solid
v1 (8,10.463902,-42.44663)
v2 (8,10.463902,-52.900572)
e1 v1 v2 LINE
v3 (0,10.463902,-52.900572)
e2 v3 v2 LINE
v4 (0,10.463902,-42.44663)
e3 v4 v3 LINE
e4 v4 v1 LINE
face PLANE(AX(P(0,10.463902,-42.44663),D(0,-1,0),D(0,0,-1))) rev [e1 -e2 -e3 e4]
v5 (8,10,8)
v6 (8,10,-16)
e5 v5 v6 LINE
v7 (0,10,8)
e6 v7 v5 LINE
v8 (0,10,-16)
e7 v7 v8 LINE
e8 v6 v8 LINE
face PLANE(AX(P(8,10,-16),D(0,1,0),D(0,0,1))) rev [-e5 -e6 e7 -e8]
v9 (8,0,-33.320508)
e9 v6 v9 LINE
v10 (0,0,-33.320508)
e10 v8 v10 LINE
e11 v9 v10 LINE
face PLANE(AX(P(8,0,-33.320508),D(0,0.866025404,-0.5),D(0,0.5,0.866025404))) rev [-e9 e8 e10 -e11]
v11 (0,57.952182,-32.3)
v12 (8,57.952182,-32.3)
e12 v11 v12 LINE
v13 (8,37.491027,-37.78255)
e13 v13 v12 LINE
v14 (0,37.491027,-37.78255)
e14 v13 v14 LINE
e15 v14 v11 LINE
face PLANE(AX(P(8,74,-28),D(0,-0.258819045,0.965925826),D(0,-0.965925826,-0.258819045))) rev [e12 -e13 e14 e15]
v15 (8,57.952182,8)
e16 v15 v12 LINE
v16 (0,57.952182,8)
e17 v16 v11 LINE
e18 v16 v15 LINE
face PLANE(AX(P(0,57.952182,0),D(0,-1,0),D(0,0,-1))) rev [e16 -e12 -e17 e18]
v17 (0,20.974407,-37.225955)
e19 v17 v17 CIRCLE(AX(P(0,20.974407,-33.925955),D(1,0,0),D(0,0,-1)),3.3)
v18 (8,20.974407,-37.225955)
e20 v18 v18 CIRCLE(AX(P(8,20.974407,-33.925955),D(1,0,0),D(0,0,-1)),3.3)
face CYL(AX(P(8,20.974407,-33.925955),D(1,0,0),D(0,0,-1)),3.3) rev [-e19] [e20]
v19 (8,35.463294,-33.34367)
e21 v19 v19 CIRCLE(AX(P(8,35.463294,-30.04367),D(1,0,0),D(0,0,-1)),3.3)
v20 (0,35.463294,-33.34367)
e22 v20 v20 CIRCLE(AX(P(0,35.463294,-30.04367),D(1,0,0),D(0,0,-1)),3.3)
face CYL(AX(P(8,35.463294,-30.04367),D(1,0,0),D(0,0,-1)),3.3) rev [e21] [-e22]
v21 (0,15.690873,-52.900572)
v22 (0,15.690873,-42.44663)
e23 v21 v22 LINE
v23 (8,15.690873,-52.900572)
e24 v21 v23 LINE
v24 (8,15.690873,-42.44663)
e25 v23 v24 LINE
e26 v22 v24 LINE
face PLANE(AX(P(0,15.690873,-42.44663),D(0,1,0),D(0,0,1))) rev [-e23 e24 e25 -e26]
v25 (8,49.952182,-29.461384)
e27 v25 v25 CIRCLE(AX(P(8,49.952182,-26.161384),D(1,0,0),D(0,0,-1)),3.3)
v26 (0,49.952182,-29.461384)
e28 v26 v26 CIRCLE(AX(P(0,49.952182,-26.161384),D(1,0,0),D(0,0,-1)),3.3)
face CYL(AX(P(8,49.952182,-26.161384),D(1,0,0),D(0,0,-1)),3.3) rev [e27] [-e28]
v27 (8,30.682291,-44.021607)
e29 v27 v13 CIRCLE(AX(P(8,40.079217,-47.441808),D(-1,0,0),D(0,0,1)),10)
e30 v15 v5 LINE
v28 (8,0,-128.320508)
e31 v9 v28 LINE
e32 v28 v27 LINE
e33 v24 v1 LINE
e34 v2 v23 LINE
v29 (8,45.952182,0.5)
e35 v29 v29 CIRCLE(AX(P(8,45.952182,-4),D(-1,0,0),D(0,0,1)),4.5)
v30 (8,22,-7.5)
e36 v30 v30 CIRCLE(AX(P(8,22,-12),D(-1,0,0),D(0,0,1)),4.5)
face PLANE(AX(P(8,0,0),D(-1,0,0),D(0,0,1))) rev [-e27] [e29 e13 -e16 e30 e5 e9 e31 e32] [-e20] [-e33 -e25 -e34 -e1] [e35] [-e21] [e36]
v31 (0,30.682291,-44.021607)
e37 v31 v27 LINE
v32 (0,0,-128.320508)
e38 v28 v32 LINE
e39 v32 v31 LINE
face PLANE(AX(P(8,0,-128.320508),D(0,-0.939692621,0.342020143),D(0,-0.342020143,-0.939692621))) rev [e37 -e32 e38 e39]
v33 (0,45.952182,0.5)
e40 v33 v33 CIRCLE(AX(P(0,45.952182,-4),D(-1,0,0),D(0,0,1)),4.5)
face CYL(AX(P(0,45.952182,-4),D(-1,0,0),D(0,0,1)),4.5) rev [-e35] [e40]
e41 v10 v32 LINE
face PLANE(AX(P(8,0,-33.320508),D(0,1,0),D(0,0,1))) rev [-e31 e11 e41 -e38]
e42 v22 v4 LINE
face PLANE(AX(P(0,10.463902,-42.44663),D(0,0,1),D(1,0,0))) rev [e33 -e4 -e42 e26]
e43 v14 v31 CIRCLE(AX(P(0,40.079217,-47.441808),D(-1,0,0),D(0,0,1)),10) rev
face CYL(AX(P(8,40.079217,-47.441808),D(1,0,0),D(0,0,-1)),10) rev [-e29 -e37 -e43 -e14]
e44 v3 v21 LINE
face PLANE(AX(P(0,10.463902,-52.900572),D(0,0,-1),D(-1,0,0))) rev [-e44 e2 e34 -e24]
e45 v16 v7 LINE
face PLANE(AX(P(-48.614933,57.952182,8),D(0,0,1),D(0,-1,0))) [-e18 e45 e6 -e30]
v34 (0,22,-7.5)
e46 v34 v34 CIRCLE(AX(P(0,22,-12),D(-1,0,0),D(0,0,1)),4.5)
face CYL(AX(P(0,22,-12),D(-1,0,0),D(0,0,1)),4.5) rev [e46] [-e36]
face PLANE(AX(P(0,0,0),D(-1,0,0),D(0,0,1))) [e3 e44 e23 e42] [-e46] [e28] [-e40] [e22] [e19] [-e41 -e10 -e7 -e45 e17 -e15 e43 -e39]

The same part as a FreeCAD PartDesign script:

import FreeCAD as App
import Part
import Sketcher
from FreeCAD import Vector
Q = App.Units.Quantity


def edges_at(feature, points):
    """Names of the edges that pass closest to the given points."""
    edges = feature.Shape.Edges
    near = lambda p: min(range(len(edges)), key=lambda i: edges[i].distToShape(Part.Vertex(*p))[0])
    return sorted({f"Edge{near(p) + 1}" for p in points})

doc = App.newDocument("Part")
body = doc.addObject("PartDesign::Body", "Body")

# Sketch on YZ plane
sketch1 = body.newObject("Sketcher::SketchObject", "Sketch")
sketch1.AttachmentSupport = (doc.getObject("YZ_Plane"), [""])
sketch1.MapMode = "FlatFace"
sketch1.addGeometry(Part.LineSegment(Vector(32, -39, 0), Vector(74, -28, 0)), False)
sketch1.addGeometry(Part.LineSegment(Vector(74, -28, 0), Vector(74, 0, 0)), False)
sketch1.addGeometry(Part.LineSegment(Vector(74, 0, 0), Vector(10, 0, 0)), False)
sketch1.addGeometry(Part.LineSegment(Vector(10, 0, 0), Vector(10, -16, 0)), False)
sketch1.addGeometry(Part.LineSegment(Vector(10, -16, 0), Vector(0, -33, 0)), False)
sketch1.addGeometry(Part.LineSegment(Vector(0, -33, 0), Vector(0, -128, 0)), False)
sketch1.addGeometry(Part.LineSegment(Vector(0, -128, 0), Vector(32, -39, 0)), False)
sketch1.addConstraint(Sketcher.Constraint("Coincident", 0, 2, 1, 1))
sketch1.addConstraint(Sketcher.Constraint("Coincident", 1, 2, 2, 1))
sketch1.addConstraint(Sketcher.Constraint("Coincident", 2, 2, 3, 1))
sketch1.addConstraint(Sketcher.Constraint("Coincident", 3, 2, 4, 1))
sketch1.addConstraint(Sketcher.Constraint("Coincident", 4, 2, 5, 1))
sketch1.addConstraint(Sketcher.Constraint("Coincident", 5, 2, 6, 1))
sketch1.addConstraint(Sketcher.Constraint("Coincident", 6, 2, 0, 1))
sketch1.addConstraint(Sketcher.Constraint("Vertical", 1))
sketch1.addConstraint(Sketcher.Constraint("Horizontal", 2))
sketch1.addConstraint(Sketcher.Constraint("Vertical", 3))
sketch1.addConstraint(Sketcher.Constraint("Vertical", 5))
sketch1.addConstraint(Sketcher.Constraint("PointOnObject", 1, 2, -1))
sketch1.addConstraint(Sketcher.Constraint("PointOnObject", 4, 2, -2))
sketch1.addConstraint(Sketcher.Constraint("DistanceX", 2, 2, 2, 1, Q("64 mm")))
sketch1.addConstraint(Sketcher.Constraint("DistanceY", 1, 1, 1, 2, Q("28 mm")))
sketch1.addConstraint(Sketcher.Constraint("DistanceY", 3, 2, 3, 1, Q("16 mm")))
sketch1.addConstraint(Sketcher.Constraint("DistanceY", 5, 2, 5, 1, Q("95 mm")))
sketch1.addConstraint(Sketcher.Constraint("Angle", 0, Q("15 deg")))
sketch1.addConstraint(Sketcher.Constraint("Angle", 4, Q("-120 deg")))
sketch1.addConstraint(Sketcher.Constraint("Angle", 6, Q("70 deg")))
sketch1.addConstraint(Sketcher.Constraint("Distance", 4, Q("20 mm")))
pad1 = body.newObject("PartDesign::Pad", "Pad")
pad1.Profile = sketch1
pad1.Length = 8

# Sketch on YZ plane
sketch2 = body.newObject("Sketcher::SketchObject", "Sketch001")
sketch2.AttachmentSupport = (doc.getObject("YZ_Plane"), [""])
sketch2.MapMode = "FlatFace"
sketch2.AttachmentOffset = App.Placement(Vector(0, 0, 8), App.Rotation())
sketch2.addGeometry(Part.LineSegment(Vector(74, 0, 0), Vector(58, 0, 0)), False)
sketch2.addGeometry(Part.LineSegment(Vector(58, 0, 0), Vector(58, -32, 0)), False)
sketch2.addGeometry(Part.LineSegment(Vector(58, -32, 0), Vector(74, -32, 0)), False)
sketch2.addGeometry(Part.LineSegment(Vector(74, -32, 0), Vector(74, 0, 0)), False)
sketch2.addConstraint(Sketcher.Constraint("Coincident", 0, 2, 1, 1))
sketch2.addConstraint(Sketcher.Constraint("Coincident", 1, 2, 2, 1))
sketch2.addConstraint(Sketcher.Constraint("Coincident", 2, 2, 3, 1))
sketch2.addConstraint(Sketcher.Constraint("Coincident", 3, 2, 0, 1))
sketch2.addConstraint(Sketcher.Constraint("Horizontal", 0))
sketch2.addConstraint(Sketcher.Constraint("Vertical", 1))
sketch2.addConstraint(Sketcher.Constraint("Horizontal", 2))
sketch2.addConstraint(Sketcher.Constraint("Vertical", 3))
sketch2.addConstraint(Sketcher.Constraint("PointOnObject", 0, 2, -1))
sketch2.addConstraint(Sketcher.Constraint("DistanceY", 1, 2, 1, 1, Q("32.3 mm")))
sketch2.addConstraint(Sketcher.Constraint("DistanceX", -1, 1, 2, 2, Q("74 mm")))
sketch2.addConstraint(Sketcher.Constraint("DistanceX", 0, 2, 0, 1, Q("16.047818 mm")))
pocket1 = body.newObject("PartDesign::Pocket", "Pocket")
pocket1.Profile = sketch2
pocket1.Type = "ThroughAll"

# Sketch on YZ plane
sketch3 = body.newObject("Sketcher::SketchObject", "Sketch002")
sketch3.AttachmentSupport = (doc.getObject("YZ_Plane"), [""])
sketch3.MapMode = "FlatFace"
sketch3.AttachmentOffset = App.Placement(Vector(0, 0, 8), App.Rotation())
sketch3.addGeometry(Part.LineSegment(Vector(58, 8, 0), Vector(10, 8, 0)), False)
sketch3.addGeometry(Part.LineSegment(Vector(10, 8, 0), Vector(10, 0, 0)), False)
sketch3.addGeometry(Part.LineSegment(Vector(10, 0, 0), Vector(58, 0, 0)), False)
sketch3.addGeometry(Part.LineSegment(Vector(58, 0, 0), Vector(58, 8, 0)), False)
sketch3.addConstraint(Sketcher.Constraint("Coincident", 0, 2, 1, 1))
sketch3.addConstraint(Sketcher.Constraint("Coincident", 1, 2, 2, 1))
sketch3.addConstraint(Sketcher.Constraint("Coincident", 2, 2, 3, 1))
sketch3.addConstraint(Sketcher.Constraint("Coincident", 3, 2, 0, 1))
sketch3.addConstraint(Sketcher.Constraint("Horizontal", 0))
sketch3.addConstraint(Sketcher.Constraint("Vertical", 1))
sketch3.addConstraint(Sketcher.Constraint("Horizontal", 2))
sketch3.addConstraint(Sketcher.Constraint("Vertical", 3))
sketch3.addConstraint(Sketcher.Constraint("PointOnObject", 1, 2, -1))
sketch3.addConstraint(Sketcher.Constraint("DistanceY", 1, 2, 1, 1, Q("8 mm")))
sketch3.addConstraint(Sketcher.Constraint("DistanceX", -1, 1, 0, 2, Q("10 mm")))
sketch3.addConstraint(Sketcher.Constraint("DistanceX", 0, 2, 0, 1, Q("47.952182 mm")))
pad2 = body.newObject("PartDesign::Pad", "Pad001")
pad2.Profile = sketch3
pad2.Length = 8
pad2.Reversed = True

# Sketch on YZ plane
sketch4 = body.newObject("Sketcher::SketchObject", "Sketch003")
sketch4.AttachmentSupport = (doc.getObject("YZ_Plane"), [""])
sketch4.MapMode = "FlatFace"
sketch4.addGeometry(Part.Circle(Vector(46, -4, 0), Vector(0, 0, 1), 4.5), False)
sketch4.addGeometry(Part.Circle(Vector(22, -12, 0), Vector(0, 0, 1), 4.5), False)
sketch4.addConstraint(Sketcher.Constraint("Equal", 0, 1))
sketch4.addConstraint(Sketcher.Constraint("Diameter", 0, Q("9 mm")))
sketch4.addConstraint(Sketcher.Constraint("DistanceY", 0, 3, -1, 1, Q("4 mm")))
sketch4.addConstraint(Sketcher.Constraint("DistanceX", -1, 1, 1, 3, Q("22 mm")))
sketch4.addConstraint(Sketcher.Constraint("DistanceY", 1, 3, -1, 1, Q("12 mm")))
sketch4.addConstraint(Sketcher.Constraint("DistanceX", -1, 1, 0, 3, Q("45.952182 mm")))
doc.recompute()
hole = body.newObject("PartDesign::Hole", "Hole")
hole.Profile = sketch4
hole.ThreadType = "None"
hole.Diameter = 9
hole.DepthType = "ThroughAll"
hole.Reversed = True

# Sketch on YZ plane
sketch5 = body.newObject("Sketcher::SketchObject", "Sketch004")
sketch5.AttachmentSupport = (doc.getObject("YZ_Plane"), [""])
sketch5.MapMode = "FlatFace"
sketch5.AttachmentOffset = App.Placement(Vector(0, 0, 8), App.Rotation())
sketch5.addGeometry(Part.Circle(Vector(50, -26.2, 0), Vector(0, 0, 1), 3.3), False)
sketch5.addGeometry(Part.Circle(Vector(35.5, -30, 0), Vector(0, 0, 1), 3.3), False)
sketch5.addGeometry(Part.Circle(Vector(21, -33.9, 0), Vector(0, 0, 1), 3.3), False)
sketch5.addConstraint(Sketcher.Constraint("Equal", 0, 1))
sketch5.addConstraint(Sketcher.Constraint("Equal", 1, 2))
sketch5.addConstraint(Sketcher.Constraint("Diameter", 0, Q("6.6 mm")))
sketch5.addConstraint(Sketcher.Constraint("DistanceX", -1, 1, 0, 3, Q("49.952182 mm")))
sketch5.addConstraint(Sketcher.Constraint("DistanceY", 1, 3, -1, 1, Q("30.04367 mm")))
sketch5.addConstraint(Sketcher.Constraint("DistanceY", 2, 3, 0, 3, Q("7.764571 mm")))
sketch5.addConstraint(Sketcher.Constraint("DistanceY", 0, 3, -1, 1, Q("26.161384 mm")))
sketch5.addConstraint(Sketcher.Constraint("DistanceX", -1, 1, 1, 3, Q("35.463294 mm")))
sketch5.addConstraint(Sketcher.Constraint("DistanceX", -1, 1, 2, 3, Q("20.974407 mm")))
doc.recompute()
hole2 = body.newObject("PartDesign::Hole", "Hole001")
hole2.Profile = sketch5
hole2.ThreadType = "None"
hole2.Diameter = 6.6
hole2.DepthType = "ThroughAll"
doc.recompute()

fillet = body.newObject("PartDesign::Fillet", "Fillet")
fillet.Base = (hole2, edges_at(hole2, [(4, 32.463, -39.13)]))
fillet.Radius = 10

# Sketch on YZ plane
sketch6 = body.newObject("Sketcher::SketchObject", "Sketch005")
sketch6.AttachmentSupport = (doc.getObject("YZ_Plane"), [""])
sketch6.MapMode = "FlatFace"
sketch6.AttachmentOffset = App.Placement(Vector(0, 0, 8), App.Rotation())
sketch6.addGeometry(Part.LineSegment(Vector(16, -42, 0), Vector(10, -42, 0)), False)
sketch6.addGeometry(Part.LineSegment(Vector(10, -42, 0), Vector(10, -53, 0)), False)
sketch6.addGeometry(Part.LineSegment(Vector(10, -53, 0), Vector(16, -53, 0)), False)
sketch6.addGeometry(Part.LineSegment(Vector(16, -53, 0), Vector(16, -42, 0)), False)
sketch6.addConstraint(Sketcher.Constraint("Coincident", 0, 2, 1, 1))
sketch6.addConstraint(Sketcher.Constraint("Coincident", 1, 2, 2, 1))
sketch6.addConstraint(Sketcher.Constraint("Coincident", 2, 2, 3, 1))
sketch6.addConstraint(Sketcher.Constraint("Coincident", 3, 2, 0, 1))
sketch6.addConstraint(Sketcher.Constraint("Horizontal", 0))
sketch6.addConstraint(Sketcher.Constraint("Vertical", 1))
sketch6.addConstraint(Sketcher.Constraint("Horizontal", 2))
sketch6.addConstraint(Sketcher.Constraint("Vertical", 3))
sketch6.addConstraint(Sketcher.Constraint("DistanceX", 0, 2, 0, 1, Q("5.226971 mm")))
sketch6.addConstraint(Sketcher.Constraint("DistanceY", 1, 2, 1, 1, Q("10.453942 mm")))
sketch6.addConstraint(Sketcher.Constraint("DistanceX", -1, 1, 0, 2, Q("10.463902 mm")))
sketch6.addConstraint(Sketcher.Constraint("DistanceY", 0, 2, -1, 1, Q("42.44663 mm")))
pocket2 = body.newObject("PartDesign::Pocket", "Pocket001")
pocket2.Profile = sketch6
pocket2.Type = "ThroughAll"

doc.recompute()
